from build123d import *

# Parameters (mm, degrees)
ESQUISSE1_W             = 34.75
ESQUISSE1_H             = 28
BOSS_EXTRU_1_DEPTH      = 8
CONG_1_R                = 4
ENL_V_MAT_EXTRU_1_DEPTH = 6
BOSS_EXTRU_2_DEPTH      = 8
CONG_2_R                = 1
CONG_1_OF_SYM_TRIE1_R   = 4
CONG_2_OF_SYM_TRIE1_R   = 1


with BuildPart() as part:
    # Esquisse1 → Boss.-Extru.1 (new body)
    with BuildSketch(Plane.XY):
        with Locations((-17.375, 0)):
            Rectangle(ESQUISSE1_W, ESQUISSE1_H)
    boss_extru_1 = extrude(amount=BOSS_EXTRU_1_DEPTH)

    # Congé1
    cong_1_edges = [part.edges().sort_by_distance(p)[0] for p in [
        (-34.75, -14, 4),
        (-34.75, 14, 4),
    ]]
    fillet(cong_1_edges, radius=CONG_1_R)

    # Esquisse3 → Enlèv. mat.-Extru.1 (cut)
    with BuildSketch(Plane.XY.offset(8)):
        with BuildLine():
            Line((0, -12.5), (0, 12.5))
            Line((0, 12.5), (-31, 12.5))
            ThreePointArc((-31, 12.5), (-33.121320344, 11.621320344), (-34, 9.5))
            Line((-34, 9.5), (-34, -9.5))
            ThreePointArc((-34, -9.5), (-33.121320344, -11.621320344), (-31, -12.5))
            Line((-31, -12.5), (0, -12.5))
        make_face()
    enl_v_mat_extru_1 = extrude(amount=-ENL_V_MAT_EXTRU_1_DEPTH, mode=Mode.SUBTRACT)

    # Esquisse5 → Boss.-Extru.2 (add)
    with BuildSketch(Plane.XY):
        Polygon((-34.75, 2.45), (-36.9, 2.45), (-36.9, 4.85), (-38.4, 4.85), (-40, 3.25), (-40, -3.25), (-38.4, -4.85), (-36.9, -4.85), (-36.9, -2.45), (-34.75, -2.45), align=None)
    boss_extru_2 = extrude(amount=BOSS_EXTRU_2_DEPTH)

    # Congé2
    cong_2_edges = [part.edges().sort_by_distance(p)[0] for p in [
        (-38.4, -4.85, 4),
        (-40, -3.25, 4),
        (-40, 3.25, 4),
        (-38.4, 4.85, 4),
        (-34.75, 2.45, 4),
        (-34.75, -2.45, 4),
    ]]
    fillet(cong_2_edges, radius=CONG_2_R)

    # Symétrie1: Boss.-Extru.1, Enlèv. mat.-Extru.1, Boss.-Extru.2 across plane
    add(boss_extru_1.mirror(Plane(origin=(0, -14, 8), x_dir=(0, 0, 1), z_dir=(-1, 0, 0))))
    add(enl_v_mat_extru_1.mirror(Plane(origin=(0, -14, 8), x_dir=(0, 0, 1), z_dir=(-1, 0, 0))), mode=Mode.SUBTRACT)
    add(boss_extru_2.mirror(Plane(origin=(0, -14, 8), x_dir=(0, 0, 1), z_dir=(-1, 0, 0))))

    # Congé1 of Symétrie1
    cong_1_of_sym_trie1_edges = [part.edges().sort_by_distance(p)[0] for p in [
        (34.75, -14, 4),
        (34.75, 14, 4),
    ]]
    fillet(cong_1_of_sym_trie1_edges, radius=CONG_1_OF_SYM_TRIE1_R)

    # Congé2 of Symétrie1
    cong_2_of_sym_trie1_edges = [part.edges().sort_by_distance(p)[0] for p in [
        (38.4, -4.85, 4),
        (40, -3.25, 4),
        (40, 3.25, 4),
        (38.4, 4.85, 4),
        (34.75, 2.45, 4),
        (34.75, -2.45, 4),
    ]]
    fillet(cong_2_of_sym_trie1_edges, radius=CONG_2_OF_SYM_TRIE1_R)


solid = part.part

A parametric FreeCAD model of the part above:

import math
import FreeCAD as App
import Part
import Sketcher
from FreeCAD import Vector


def edges_at(feature, points):
    """Names of the edges that pass closest to the given points."""
    edges = feature.Shape.Edges
    near = lambda p: min(range(len(edges)), key=lambda i: edges[i].distToShape(Part.Vertex(*p))[0])
    return sorted({f"Edge{near(p) + 1}" for p in points})


def add_polygon(sketch, points):
    """Adds a closed chain of lines whose ends are joined by coincident constraints."""
    first, n = sketch.GeometryCount, len(points)
    for a, b in zip(points, points[1:] + points[:1]):
        sketch.addGeometry(Part.LineSegment(App.Vector(*a, 0), App.Vector(*b, 0)), False)
    for i in range(n):
        sketch.addConstraint(Sketcher.Constraint("Coincident", first + i, 2, first + (i + 1) % n, 1))

doc = App.newDocument("Part")
body = doc.addObject("PartDesign::Body", "Body")

sketch1 = doc.addObject("Sketcher::SketchObject", "Sketch")
body.addObject(sketch1)
sketch1.AttachmentSupport = (doc.XY_Plane, [""])
sketch1.MapMode = "FlatFace"
add_polygon(sketch1, [(-35, 14), (-35, -14), (0, -14), (0, 14)])
sketch1.addConstraint([
    Sketcher.Constraint("Vertical", 0),
    Sketcher.Constraint("Horizontal", 1),
    Sketcher.Constraint("Vertical", 2),
    Sketcher.Constraint("Horizontal", 3),
    Sketcher.Constraint("Symmetric", 1, 2, 2, 2, -1, 1),
    Sketcher.Constraint("DistanceY", 0, 2, 0, 1, 28.0),
    Sketcher.Constraint("DistanceX", 1, 1, 1, 2, 34.75),
])
pad1 = doc.addObject("PartDesign::Pad", "Pad")
body.addObject(pad1)
pad1.Profile = sketch1
pad1.Length = 8
doc.recompute()

fillet = doc.addObject("PartDesign::Fillet", "Fillet")
body.addObject(fillet)
fillet.Base = (pad1, edges_at(pad1, [(-34.75, -14, 4), (-34.75, 14, 4)]))
fillet.Radius = 4

sketch2 = doc.addObject("Sketcher::SketchObject", "Sketch001")
body.addObject(sketch2)
sketch2.AttachmentSupport = (doc.XY_Plane, [""])
sketch2.MapMode = "FlatFace"
sketch2.AttachmentOffset = App.Placement(Vector(0, 0, 8), App.Rotation())
sketch2.addGeometry([
    Part.LineSegment(Vector(0, -12.5, 0), Vector(0, 12.5, 0)),
    Part.LineSegment(Vector(0, 12.5, 0), Vector(-31, 12.5, 0)),
    Part.ArcOfCircle(Part.Circle(Vector(-31, 9.5, 0), Vector(0, 0, 1), 3), math.radians(90), math.radians(180)),
    Part.LineSegment(Vector(-34, 9.5, 0), Vector(-34, -9.5, 0)),
    Part.ArcOfCircle(Part.Circle(Vector(-31, -9.5, 0), Vector(0, 0, 1), 3), math.radians(180), math.radians(270)),
    Part.LineSegment(Vector(-31, -12.5, 0), Vector(0, -12.5, 0)),
], False)
sketch2.addConstraint([
    Sketcher.Constraint("Coincident", 0, 2, 1, 1),
    Sketcher.Constraint("Tangent", 1, 2, 2, 1),
    Sketcher.Constraint("Tangent", 2, 2, 3, 1),
    Sketcher.Constraint("Tangent", 3, 2, 4, 1),
    Sketcher.Constraint("Tangent", 4, 2, 5, 1),
    Sketcher.Constraint("Coincident", 5, 2, 0, 1),
    Sketcher.Constraint("Vertical", 0),
    Sketcher.Constraint("Horizontal", 1),
    Sketcher.Constraint("Vertical", 3),
    Sketcher.Constraint("Horizontal", 5),
    Sketcher.Constraint("Equal", 2, 4),
    Sketcher.Constraint("Symmetric", 0, 2, 5, 2, -1, 1),
    Sketcher.Constraint("Radius", 2, 3.0),
    Sketcher.Constraint("DistanceX", 1, 2, 1, 1, 31.0),
    Sketcher.Constraint("DistanceY", 0, 1, 0, 2, 25.0),
])
pocket1 = doc.addObject("PartDesign::Pocket", "Pocket")
body.addObject(pocket1)
pocket1.Profile = sketch2
pocket1.Length = 6

sketch3 = doc.addObject("Sketcher::SketchObject", "Sketch002")
body.addObject(sketch3)
sketch3.AttachmentSupport = (doc.XY_Plane, [""])
sketch3.MapMode = "FlatFace"
add_polygon(sketch3, [(-34.8, 2.5), (-36.9, 2.5), (-36.9, 4.8), (-38.4, 4.8), (-40, 3.2), (-40, -3.2), (-38.4, -4.8), (-36.9, -4.8), (-36.9, -2.5), (-34.8, -2.5)])
sketch3.addConstraint([
    Sketcher.Constraint("Horizontal", 0),
    Sketcher.Constraint("Vertical", 1),
    Sketcher.Constraint("Horizontal", 2),
    Sketcher.Constraint("Vertical", 4),
    Sketcher.Constraint("Horizontal", 6),
    Sketcher.Constraint("Vertical", 7),
    Sketcher.Constraint("Horizontal", 8),
    Sketcher.Constraint("Vertical", 9),
    Sketcher.Constraint("Symmetric", 2, 2, 5, 2, -1),
    Sketcher.Constraint("Symmetric", 0, 2, 7, 2, -1),
    Sketcher.Constraint("Perpendicular", 3, 5),
    Sketcher.Constraint("Equal", 3, 5),
    Sketcher.Constraint("DistanceX", 2, 2, 2, 1, 1.5),
    Sketcher.Constraint("DistanceY", 1, 1, 1, 2, 2.4),
    Sketcher.Constraint("DistanceY", 4, 2, 4, 1, 6.5),
    Sketcher.Constraint("DistanceY", 9, 1, 9, 2, 4.9),
    Sketcher.Constraint("DistanceX", 3, 2, -1, 1, 40.0),
    Sketcher.Constraint("DistanceX", 0, 2, 0, 1, 2.15),
])
pad2 = doc.addObject("PartDesign::Pad", "Pad001")
body.addObject(pad2)
pad2.Profile = sketch3
pad2.Length = 8
doc.recompute()

fillet2 = doc.addObject("PartDesign::Fillet", "Fillet001")
body.addObject(fillet2)
fillet2.Base = (pad2, edges_at(pad2, [
    (-38.4, -4.85, 4),
    (-40, -3.25, 4),
    (-40, 3.25, 4),
    (-38.4, 4.85, 4),
    (-34.75, 2.45, 4),
    (-34.75, -2.45, 4),
]))
fillet2.Radius = 1
doc.recompute()

mirrored = doc.addObject("PartDesign::Mirrored", "Mirrored")
body.addObject(mirrored)
mirrored.Originals = [pad1, pocket1, pad2]
mirrored.MirrorPlane = (doc.YZ_Plane, [""])
body.Tip = mirrored
doc.recompute()

fillet3 = doc.addObject("PartDesign::Fillet", "Fillet002")
body.addObject(fillet3)
fillet3.Base = (mirrored, edges_at(mirrored, [(34.75, -14, 4), (34.75, 14, 4)]))
fillet3.Radius = 4
doc.recompute()

fillet4 = doc.addObject("PartDesign::Fillet", "Fillet003")
body.addObject(fillet4)
fillet4.Base = (fillet3, edges_at(fillet3, [
    (38.4, -4.85, 4),
    (40, -3.25, 4),
    (40, 3.25, 4),
    (38.4, 4.85, 4),
    (34.75, 2.45, 4),
    (34.75, -2.45, 4),
]))
fillet4.Radius = 1

doc.recompute()
